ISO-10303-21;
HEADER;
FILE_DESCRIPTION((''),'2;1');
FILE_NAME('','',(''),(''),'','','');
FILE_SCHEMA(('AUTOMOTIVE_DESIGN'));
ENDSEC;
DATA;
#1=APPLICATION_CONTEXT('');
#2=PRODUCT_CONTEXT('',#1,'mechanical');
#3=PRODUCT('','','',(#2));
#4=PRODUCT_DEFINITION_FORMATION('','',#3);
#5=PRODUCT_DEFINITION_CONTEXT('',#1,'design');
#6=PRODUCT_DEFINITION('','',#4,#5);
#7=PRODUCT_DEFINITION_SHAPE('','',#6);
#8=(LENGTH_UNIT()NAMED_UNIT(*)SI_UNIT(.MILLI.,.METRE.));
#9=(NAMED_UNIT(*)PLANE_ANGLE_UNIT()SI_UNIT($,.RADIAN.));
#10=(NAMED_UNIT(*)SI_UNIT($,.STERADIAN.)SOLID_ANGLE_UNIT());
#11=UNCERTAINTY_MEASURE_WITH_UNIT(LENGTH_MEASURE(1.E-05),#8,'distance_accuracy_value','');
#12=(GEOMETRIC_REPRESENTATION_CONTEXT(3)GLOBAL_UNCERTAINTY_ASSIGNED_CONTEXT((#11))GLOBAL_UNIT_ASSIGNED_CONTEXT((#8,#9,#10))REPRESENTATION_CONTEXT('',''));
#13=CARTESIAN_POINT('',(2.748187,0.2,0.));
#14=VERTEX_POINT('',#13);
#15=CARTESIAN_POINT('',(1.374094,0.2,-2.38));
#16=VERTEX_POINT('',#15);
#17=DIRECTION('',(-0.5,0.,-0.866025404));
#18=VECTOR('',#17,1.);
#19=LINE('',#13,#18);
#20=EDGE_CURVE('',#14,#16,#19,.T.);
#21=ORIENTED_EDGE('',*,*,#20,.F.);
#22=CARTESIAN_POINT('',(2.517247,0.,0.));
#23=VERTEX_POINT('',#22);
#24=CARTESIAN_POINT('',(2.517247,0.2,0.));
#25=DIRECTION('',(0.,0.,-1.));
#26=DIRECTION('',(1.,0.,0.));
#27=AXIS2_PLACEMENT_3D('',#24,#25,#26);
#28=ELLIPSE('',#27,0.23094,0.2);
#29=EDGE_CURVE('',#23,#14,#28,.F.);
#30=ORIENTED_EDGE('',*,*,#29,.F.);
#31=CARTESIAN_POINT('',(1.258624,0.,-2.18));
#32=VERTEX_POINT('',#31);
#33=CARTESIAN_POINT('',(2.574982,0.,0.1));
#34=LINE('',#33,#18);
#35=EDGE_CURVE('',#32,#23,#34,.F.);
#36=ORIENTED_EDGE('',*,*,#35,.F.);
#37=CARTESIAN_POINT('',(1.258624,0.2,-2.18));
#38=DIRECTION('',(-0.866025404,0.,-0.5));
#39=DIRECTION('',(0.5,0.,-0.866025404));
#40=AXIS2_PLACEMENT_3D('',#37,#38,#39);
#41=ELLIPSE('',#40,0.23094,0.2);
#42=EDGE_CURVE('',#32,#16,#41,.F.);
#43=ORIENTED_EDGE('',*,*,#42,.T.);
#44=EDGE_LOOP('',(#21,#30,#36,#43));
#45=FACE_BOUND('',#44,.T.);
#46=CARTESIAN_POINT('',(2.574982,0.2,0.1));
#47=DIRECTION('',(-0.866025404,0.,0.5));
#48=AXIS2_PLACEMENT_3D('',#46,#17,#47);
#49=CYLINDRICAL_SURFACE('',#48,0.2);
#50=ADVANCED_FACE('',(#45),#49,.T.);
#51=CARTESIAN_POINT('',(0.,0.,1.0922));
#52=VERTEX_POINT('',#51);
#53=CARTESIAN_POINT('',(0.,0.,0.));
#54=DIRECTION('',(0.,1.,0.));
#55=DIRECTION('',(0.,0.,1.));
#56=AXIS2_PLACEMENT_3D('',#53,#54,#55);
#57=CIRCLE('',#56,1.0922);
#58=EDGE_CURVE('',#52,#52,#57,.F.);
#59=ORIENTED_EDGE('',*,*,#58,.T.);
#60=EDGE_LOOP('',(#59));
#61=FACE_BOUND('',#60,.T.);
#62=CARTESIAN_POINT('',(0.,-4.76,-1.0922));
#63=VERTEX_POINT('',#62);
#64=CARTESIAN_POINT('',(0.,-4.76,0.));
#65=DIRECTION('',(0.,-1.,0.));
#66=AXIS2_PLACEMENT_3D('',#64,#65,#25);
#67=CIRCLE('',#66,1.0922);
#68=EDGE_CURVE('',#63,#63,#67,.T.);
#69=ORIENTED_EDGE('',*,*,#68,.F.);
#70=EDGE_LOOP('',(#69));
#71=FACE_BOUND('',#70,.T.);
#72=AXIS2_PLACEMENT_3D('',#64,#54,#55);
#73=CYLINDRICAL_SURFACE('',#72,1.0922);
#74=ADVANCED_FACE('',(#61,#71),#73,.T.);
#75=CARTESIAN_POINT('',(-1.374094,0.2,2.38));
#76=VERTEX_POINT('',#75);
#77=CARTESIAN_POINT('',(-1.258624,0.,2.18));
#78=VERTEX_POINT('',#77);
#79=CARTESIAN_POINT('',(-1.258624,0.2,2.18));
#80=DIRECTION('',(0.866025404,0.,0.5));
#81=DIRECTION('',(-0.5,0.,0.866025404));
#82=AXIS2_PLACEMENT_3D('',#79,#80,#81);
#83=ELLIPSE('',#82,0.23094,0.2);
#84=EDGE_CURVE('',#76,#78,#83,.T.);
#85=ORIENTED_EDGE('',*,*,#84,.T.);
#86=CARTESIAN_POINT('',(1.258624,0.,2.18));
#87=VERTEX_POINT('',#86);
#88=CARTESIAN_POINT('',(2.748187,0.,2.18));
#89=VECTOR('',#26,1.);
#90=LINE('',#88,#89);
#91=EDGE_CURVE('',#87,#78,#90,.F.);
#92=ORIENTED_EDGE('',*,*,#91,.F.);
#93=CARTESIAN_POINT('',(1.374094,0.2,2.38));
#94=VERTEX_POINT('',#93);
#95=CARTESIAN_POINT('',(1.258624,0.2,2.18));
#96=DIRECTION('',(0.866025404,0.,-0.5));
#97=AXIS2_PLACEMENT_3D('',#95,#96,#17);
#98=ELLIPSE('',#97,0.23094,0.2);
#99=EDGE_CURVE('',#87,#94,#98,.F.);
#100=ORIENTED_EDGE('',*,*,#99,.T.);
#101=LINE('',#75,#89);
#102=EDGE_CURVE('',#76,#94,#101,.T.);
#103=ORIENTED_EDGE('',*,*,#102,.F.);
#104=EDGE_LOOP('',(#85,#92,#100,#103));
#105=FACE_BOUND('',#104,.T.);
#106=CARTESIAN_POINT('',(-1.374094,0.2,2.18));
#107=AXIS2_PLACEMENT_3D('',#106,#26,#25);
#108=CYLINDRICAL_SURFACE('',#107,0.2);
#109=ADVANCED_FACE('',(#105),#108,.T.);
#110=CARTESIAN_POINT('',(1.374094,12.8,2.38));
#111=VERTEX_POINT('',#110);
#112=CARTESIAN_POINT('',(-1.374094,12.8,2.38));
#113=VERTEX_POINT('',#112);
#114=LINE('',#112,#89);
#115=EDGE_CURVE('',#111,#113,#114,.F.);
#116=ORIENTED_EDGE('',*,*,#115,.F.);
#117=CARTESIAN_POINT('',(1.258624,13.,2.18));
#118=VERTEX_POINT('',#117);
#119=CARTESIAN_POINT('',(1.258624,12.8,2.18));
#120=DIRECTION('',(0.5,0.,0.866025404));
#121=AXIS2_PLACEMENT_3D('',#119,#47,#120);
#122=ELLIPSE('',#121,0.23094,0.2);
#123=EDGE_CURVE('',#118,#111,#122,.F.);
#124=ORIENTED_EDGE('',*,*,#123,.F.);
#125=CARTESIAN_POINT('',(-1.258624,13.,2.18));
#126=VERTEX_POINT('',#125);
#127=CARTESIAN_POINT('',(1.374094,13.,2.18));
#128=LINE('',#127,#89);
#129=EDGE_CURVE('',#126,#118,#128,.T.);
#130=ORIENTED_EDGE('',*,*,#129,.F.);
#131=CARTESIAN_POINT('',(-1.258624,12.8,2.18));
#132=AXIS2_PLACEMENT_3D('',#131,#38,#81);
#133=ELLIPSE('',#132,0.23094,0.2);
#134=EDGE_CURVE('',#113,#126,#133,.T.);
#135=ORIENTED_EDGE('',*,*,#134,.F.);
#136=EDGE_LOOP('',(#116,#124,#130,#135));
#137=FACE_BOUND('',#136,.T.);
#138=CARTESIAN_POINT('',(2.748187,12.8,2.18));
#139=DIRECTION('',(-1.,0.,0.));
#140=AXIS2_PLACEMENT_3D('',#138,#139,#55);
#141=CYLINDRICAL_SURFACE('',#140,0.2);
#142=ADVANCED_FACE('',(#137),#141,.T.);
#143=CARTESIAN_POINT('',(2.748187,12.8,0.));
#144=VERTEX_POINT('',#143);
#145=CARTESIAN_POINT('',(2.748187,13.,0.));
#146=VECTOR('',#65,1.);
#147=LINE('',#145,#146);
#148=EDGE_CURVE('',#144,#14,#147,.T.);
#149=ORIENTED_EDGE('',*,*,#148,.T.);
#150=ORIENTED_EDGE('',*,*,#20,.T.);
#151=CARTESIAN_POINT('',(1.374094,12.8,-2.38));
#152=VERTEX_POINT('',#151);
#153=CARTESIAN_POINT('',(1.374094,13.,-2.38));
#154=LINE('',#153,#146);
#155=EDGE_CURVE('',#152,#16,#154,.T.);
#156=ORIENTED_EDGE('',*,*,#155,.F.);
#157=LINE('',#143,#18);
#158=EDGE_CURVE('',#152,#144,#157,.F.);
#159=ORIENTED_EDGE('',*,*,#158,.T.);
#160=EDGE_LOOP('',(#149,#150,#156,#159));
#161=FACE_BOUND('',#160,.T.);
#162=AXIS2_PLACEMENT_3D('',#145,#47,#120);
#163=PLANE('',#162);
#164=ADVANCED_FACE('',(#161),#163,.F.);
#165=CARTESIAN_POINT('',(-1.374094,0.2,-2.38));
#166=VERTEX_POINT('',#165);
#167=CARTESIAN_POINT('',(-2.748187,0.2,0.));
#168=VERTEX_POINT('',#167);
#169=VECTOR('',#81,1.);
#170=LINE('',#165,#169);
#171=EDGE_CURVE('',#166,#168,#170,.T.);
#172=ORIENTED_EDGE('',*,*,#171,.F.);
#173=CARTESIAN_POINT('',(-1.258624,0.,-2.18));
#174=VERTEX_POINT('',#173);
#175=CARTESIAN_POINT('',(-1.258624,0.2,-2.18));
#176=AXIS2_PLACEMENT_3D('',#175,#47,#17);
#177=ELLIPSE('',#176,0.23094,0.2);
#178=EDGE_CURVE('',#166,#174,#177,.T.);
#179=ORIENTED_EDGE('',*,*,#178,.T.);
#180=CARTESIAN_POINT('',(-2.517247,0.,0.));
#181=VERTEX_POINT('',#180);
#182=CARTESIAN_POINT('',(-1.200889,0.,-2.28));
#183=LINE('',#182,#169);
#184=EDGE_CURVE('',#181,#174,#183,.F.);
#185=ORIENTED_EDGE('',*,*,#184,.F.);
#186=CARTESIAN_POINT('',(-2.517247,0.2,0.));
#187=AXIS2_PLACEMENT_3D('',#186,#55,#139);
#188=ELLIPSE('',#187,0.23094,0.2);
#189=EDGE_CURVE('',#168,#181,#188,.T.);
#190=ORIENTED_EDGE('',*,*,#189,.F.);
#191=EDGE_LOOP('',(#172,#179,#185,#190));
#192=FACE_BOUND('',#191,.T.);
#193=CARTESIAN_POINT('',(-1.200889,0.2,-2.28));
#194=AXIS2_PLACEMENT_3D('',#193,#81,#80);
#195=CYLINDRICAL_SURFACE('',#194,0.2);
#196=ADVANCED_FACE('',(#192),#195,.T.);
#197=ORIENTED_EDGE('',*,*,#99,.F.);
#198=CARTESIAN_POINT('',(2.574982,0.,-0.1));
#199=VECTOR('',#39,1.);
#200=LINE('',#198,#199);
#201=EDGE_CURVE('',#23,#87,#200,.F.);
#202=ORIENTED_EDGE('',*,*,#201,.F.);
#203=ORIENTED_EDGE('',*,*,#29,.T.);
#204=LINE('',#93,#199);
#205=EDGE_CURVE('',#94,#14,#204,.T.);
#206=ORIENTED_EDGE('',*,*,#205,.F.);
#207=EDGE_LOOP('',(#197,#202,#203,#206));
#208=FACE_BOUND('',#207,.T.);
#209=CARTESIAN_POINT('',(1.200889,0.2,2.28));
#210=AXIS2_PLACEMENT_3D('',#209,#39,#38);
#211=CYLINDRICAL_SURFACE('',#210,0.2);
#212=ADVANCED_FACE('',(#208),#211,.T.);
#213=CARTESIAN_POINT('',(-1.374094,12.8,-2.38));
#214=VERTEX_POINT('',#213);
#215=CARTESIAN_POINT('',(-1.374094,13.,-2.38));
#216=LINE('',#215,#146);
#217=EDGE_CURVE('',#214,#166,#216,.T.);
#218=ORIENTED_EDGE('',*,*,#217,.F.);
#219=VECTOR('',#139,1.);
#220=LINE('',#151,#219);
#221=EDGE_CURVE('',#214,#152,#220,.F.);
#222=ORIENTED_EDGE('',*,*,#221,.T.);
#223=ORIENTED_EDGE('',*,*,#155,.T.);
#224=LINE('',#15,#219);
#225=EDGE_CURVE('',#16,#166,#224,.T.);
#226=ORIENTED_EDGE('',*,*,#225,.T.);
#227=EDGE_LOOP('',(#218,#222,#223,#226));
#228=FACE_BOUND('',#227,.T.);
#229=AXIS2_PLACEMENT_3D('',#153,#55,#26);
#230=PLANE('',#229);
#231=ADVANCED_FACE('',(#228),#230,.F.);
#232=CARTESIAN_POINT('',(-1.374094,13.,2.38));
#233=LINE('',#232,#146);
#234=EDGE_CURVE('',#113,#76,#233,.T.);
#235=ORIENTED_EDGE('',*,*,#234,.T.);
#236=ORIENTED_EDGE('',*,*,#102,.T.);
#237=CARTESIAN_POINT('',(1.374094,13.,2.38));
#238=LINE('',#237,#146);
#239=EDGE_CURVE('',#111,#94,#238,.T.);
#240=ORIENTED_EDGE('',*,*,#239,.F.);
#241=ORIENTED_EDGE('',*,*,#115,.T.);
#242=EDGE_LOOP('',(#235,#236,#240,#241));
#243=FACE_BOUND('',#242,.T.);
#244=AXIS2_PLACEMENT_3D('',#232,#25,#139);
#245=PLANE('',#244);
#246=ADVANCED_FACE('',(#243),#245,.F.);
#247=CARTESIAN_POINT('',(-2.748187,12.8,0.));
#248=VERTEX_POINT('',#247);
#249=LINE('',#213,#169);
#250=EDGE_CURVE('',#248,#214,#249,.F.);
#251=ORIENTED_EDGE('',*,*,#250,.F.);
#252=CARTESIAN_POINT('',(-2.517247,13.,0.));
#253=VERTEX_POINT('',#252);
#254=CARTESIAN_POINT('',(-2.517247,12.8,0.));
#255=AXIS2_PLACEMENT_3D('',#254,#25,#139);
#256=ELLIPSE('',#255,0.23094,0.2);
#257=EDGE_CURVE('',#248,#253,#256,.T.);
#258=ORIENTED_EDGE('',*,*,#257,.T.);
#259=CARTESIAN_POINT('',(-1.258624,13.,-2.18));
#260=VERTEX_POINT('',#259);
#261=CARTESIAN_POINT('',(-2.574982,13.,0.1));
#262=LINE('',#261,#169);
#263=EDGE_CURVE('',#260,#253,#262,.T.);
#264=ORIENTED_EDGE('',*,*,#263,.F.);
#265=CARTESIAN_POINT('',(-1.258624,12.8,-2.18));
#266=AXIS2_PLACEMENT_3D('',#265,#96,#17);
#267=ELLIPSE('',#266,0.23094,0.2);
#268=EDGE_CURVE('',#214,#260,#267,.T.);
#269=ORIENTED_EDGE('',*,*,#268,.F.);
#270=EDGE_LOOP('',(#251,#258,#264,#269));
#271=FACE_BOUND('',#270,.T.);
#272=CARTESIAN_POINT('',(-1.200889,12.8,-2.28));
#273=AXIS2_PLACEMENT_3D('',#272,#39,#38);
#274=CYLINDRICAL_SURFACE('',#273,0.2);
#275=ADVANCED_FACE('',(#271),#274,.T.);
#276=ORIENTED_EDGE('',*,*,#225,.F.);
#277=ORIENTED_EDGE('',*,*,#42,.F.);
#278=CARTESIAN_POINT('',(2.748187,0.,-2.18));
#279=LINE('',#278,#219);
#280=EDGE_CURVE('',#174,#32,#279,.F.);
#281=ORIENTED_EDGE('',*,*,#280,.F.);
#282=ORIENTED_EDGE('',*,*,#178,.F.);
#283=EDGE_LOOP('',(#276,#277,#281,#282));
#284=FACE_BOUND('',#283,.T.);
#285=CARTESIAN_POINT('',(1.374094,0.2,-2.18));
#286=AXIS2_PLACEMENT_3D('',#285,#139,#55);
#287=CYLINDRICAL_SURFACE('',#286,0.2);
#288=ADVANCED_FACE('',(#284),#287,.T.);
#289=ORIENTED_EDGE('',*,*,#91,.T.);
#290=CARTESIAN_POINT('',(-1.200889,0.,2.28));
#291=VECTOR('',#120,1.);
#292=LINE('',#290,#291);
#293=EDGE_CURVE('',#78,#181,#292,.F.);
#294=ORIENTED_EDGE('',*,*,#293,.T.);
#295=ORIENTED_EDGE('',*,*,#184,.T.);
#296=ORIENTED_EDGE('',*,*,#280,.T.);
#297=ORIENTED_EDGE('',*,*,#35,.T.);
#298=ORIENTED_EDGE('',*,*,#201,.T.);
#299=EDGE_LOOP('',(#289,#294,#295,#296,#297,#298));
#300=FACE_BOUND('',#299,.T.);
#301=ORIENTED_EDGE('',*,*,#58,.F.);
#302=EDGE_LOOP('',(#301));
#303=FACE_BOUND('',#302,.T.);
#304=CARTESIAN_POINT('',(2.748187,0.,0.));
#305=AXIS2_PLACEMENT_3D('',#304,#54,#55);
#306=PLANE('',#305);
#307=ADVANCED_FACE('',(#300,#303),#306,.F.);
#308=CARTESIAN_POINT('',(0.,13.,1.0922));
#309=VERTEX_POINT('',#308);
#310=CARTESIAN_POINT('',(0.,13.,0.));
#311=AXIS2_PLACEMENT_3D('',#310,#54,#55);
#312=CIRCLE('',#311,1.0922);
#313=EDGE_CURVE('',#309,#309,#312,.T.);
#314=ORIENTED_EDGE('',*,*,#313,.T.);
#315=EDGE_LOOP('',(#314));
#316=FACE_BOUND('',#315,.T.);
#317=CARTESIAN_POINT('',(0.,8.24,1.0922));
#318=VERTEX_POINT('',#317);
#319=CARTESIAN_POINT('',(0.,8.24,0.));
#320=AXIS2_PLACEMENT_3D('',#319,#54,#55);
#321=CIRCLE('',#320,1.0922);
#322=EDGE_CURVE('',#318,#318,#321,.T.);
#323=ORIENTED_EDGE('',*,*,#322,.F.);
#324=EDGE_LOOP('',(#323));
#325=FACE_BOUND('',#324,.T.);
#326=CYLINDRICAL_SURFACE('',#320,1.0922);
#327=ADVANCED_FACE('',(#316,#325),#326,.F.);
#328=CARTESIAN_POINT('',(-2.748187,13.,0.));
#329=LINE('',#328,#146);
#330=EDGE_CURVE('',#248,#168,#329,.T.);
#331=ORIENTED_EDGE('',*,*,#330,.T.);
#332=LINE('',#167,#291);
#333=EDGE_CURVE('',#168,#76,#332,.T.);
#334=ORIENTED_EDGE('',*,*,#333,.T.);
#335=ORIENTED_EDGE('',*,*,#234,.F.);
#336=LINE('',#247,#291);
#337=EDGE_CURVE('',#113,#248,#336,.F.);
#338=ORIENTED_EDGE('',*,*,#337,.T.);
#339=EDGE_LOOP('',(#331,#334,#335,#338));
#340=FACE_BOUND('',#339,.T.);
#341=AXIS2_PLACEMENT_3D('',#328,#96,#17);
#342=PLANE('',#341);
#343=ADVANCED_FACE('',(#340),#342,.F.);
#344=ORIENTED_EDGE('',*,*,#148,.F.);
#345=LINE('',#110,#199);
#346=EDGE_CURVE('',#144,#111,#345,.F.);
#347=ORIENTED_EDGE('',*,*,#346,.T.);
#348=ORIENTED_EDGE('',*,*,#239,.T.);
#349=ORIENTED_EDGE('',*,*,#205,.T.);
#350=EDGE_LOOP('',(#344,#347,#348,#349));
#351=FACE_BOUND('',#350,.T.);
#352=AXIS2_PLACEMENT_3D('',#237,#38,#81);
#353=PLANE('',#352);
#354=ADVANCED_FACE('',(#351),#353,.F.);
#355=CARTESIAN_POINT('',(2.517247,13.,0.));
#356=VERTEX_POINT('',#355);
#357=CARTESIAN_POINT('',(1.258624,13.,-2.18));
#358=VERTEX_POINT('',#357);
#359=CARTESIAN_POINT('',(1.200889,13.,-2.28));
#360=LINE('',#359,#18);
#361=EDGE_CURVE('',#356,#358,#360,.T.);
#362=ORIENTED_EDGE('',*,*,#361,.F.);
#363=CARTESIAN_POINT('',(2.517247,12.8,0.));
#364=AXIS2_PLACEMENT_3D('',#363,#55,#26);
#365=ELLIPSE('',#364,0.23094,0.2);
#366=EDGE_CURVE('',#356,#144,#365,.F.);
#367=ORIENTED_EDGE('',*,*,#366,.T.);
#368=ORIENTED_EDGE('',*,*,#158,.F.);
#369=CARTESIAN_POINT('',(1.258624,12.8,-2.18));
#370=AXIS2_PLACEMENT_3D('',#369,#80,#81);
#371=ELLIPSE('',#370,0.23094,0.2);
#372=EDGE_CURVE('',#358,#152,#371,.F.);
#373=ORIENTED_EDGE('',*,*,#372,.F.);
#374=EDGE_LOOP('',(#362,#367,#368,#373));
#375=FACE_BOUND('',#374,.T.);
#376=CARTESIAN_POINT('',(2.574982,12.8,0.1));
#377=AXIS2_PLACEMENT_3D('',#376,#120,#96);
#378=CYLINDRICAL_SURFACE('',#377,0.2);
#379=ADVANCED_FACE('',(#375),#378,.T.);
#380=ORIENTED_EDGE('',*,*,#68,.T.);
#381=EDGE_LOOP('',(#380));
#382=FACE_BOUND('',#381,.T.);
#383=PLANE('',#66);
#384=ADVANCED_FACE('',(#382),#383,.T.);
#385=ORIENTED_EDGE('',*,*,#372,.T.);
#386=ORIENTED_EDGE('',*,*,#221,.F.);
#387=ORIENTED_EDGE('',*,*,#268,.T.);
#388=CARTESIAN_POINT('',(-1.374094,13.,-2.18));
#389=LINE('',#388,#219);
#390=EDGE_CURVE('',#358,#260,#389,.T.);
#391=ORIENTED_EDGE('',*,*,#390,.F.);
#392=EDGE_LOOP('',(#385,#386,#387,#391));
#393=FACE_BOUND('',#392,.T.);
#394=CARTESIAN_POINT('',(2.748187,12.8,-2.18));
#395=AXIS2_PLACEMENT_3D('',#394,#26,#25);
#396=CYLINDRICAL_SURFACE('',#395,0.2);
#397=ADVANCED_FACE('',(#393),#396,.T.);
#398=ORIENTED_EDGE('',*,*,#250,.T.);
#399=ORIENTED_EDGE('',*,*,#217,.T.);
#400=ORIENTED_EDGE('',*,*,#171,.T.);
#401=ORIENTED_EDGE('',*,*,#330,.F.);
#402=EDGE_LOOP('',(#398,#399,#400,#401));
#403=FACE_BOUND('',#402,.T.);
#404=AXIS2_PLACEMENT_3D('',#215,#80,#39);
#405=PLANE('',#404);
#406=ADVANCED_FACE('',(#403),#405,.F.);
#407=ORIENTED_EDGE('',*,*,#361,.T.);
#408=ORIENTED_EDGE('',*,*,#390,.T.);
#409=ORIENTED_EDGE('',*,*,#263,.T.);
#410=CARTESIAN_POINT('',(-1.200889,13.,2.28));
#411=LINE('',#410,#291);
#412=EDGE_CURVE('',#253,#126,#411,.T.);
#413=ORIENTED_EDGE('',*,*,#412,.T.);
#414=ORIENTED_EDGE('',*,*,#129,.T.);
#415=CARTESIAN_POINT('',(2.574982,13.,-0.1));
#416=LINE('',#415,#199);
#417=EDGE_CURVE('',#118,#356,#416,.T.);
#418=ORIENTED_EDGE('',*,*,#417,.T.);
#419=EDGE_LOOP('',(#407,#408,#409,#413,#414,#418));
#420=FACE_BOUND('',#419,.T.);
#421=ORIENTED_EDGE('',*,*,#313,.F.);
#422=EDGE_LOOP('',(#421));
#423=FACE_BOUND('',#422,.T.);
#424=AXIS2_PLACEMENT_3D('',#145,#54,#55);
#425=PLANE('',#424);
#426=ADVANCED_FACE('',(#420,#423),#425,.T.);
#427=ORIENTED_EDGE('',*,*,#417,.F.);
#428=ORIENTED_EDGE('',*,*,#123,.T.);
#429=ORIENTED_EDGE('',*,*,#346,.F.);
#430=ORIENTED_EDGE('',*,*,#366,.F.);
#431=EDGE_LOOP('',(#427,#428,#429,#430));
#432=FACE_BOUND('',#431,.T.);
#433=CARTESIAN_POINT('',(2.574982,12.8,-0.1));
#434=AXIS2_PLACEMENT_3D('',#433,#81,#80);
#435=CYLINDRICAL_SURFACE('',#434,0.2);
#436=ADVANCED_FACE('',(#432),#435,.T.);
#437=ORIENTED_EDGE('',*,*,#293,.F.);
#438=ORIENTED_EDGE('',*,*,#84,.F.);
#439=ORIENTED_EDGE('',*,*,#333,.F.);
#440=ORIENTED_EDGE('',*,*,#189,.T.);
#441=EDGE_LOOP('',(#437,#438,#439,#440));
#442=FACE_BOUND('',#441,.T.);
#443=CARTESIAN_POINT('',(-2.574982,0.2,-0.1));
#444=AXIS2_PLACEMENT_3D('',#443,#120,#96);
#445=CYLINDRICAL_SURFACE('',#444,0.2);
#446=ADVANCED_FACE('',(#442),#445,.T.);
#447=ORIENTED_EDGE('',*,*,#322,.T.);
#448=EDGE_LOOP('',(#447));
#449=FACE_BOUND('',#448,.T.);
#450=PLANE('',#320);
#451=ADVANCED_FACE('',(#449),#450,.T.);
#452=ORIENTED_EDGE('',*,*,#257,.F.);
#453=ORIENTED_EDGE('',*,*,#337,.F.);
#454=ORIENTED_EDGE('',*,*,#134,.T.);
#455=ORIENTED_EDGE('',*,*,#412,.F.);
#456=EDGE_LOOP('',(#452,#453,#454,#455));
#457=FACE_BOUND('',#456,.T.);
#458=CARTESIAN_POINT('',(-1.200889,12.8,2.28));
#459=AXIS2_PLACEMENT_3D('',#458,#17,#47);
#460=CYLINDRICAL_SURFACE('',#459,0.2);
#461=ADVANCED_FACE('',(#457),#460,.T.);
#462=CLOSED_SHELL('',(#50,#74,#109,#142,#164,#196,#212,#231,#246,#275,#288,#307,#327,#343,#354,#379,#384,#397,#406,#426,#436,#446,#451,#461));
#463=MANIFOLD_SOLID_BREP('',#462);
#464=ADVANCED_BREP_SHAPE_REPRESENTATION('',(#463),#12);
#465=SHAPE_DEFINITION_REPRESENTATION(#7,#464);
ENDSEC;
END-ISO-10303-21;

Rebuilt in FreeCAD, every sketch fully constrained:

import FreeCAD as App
import Part
import Sketcher
Q = App.Units.Quantity


def edges_at(feature, points):
    """Names of the edges that pass closest to the given points."""
    edges = feature.Shape.Edges
    near = lambda p: min(range(len(edges)), key=lambda i: edges[i].distToShape(Part.Vertex(*p))[0])
    return sorted({f"Edge{near(p) + 1}" for p in points})

doc = App.newDocument("Part")
body = doc.addObject("PartDesign::Body", "Body")

sketch1 = doc.addObject("Sketcher::SketchObject", "Sketch")
body.addObject(sketch1)
sketch1.AttachmentSupport = (doc.XZ_Plane, [""])
sketch1.MapMode = "FlatFace"
sketch1.addGeometry(Part.LineSegment(App.Vector(2.7, 0, 0), App.Vector(1.4, -2.4, 0)), False)
sketch1.addGeometry(Part.LineSegment(App.Vector(1.4, -2.4, 0), App.Vector(-1.4, -2.4, 0)), False)
sketch1.addGeometry(Part.LineSegment(App.Vector(-1.4, -2.4, 0), App.Vector(-2.7, 0, 0)), False)
sketch1.addGeometry(Part.LineSegment(App.Vector(-2.7, 0, 0), App.Vector(-1.4, 2.4, 0)), False)
sketch1.addGeometry(Part.LineSegment(App.Vector(-1.4, 2.4, 0), App.Vector(1.4, 2.4, 0)), False)
sketch1.addGeometry(Part.LineSegment(App.Vector(1.4, 2.4, 0), App.Vector(2.7, 0, 0)), False)
sketch1.addConstraint(Sketcher.Constraint("Coincident", 0, 2, 1, 1))
sketch1.addConstraint(Sketcher.Constraint("Coincident", 1, 2, 2, 1))
sketch1.addConstraint(Sketcher.Constraint("Coincident", 2, 2, 3, 1))
sketch1.addConstraint(Sketcher.Constraint("Coincident", 3, 2, 4, 1))
sketch1.addConstraint(Sketcher.Constraint("Coincident", 4, 2, 5, 1))
sketch1.addConstraint(Sketcher.Constraint("Coincident", 5, 2, 0, 1))
sketch1.addConstraint(Sketcher.Constraint("Horizontal", 1))
sketch1.addConstraint(Sketcher.Constraint("Horizontal", 4))
sketch1.addConstraint(Sketcher.Constraint("Symmetric", 0, 2, 3, 2, -1, 1))
sketch1.addConstraint(Sketcher.Constraint("Symmetric", 2, 2, 5, 2, -1, 1))
sketch1.addConstraint(Sketcher.Constraint("PointOnObject", 2, 2, -1))
sketch1.addConstraint(Sketcher.Constraint("Parallel", 2, 5))
sketch1.addConstraint(Sketcher.Constraint("Vertical", 1, 2, 3, 2))
sketch1.addConstraint(Sketcher.Constraint("Angle", 0, Q("-120 deg")))
sketch1.addConstraint(Sketcher.Constraint("DistanceY", 0, 2, -1, 1, Q("2.38 mm")))
sketch1.addConstraint(Sketcher.Constraint("DistanceX", 1, 2, 1, 1, Q("2.748187 mm")))
pad1 = doc.addObject("PartDesign::Pad", "Pad")
body.addObject(pad1)
pad1.Profile = sketch1
pad1.Length = 13
pad1.Reversed = True
doc.recompute()

fillet = doc.addObject("PartDesign::Fillet", "Fillet")
body.addObject(fillet)
fillet.Base = (pad1, edges_at(pad1, [
    (0, 13, -2.38),
    (-2.061, 13, -1.19),
    (-2.061, 13, 1.19),
    (0, 13, 2.38),
    (2.061, 13, 1.19),
    (0, 0, 2.38),
    (-2.061, 0, 1.19),
    (-2.061, 0, -1.19),
    (2.061, 13, -1.19),
    (0, 0, -2.38),
    (2.061, 0, -1.19),
    (2.061, 0, 1.19),
]))
fillet.Radius = 0.2

sketch2 = doc.addObject("Sketcher::SketchObject", "Sketch001")
body.addObject(sketch2)
sketch2.AttachmentSupport = (doc.XZ_Plane, [""])
sketch2.MapMode = "FlatFace"
sketch2.addGeometry(Part.Circle(App.Vector(0, 0, 0), App.Vector(0, 0, 1), 1.1), False)
sketch2.addConstraint(Sketcher.Constraint("Coincident", 0, 3, -1, 1))
sketch2.addConstraint(Sketcher.Constraint("Diameter", 0, Q("2.1844 mm")))
pad2 = doc.addObject("PartDesign::Pad", "Pad001")
body.addObject(pad2)
pad2.Profile = sketch2
pad2.Length = 4.76

sketch3 = doc.addObject("Sketcher::SketchObject", "Sketch002")
body.addObject(sketch3)
sketch3.AttachmentSupport = (doc.XZ_Plane, [""])
sketch3.MapMode = "FlatFace"
sketch3.AttachmentOffset = App.Placement(App.Vector(0, 0, -13), App.Rotation())
sketch3.addGeometry(Part.Circle(App.Vector(0, 0, 0), App.Vector(0, 0, 1), 1.1), False)
sketch3.addConstraint(Sketcher.Constraint("Coincident", 0, 3, -1, 1))
sketch3.addConstraint(Sketcher.Constraint("Diameter", 0, Q("2.1844 mm")))
pocket1 = doc.addObject("PartDesign::Pocket", "Pocket")
body.addObject(pocket1)
pocket1.Profile = sketch3
pocket1.Length = 4.76
pocket1.Reversed = True

doc.recompute()
